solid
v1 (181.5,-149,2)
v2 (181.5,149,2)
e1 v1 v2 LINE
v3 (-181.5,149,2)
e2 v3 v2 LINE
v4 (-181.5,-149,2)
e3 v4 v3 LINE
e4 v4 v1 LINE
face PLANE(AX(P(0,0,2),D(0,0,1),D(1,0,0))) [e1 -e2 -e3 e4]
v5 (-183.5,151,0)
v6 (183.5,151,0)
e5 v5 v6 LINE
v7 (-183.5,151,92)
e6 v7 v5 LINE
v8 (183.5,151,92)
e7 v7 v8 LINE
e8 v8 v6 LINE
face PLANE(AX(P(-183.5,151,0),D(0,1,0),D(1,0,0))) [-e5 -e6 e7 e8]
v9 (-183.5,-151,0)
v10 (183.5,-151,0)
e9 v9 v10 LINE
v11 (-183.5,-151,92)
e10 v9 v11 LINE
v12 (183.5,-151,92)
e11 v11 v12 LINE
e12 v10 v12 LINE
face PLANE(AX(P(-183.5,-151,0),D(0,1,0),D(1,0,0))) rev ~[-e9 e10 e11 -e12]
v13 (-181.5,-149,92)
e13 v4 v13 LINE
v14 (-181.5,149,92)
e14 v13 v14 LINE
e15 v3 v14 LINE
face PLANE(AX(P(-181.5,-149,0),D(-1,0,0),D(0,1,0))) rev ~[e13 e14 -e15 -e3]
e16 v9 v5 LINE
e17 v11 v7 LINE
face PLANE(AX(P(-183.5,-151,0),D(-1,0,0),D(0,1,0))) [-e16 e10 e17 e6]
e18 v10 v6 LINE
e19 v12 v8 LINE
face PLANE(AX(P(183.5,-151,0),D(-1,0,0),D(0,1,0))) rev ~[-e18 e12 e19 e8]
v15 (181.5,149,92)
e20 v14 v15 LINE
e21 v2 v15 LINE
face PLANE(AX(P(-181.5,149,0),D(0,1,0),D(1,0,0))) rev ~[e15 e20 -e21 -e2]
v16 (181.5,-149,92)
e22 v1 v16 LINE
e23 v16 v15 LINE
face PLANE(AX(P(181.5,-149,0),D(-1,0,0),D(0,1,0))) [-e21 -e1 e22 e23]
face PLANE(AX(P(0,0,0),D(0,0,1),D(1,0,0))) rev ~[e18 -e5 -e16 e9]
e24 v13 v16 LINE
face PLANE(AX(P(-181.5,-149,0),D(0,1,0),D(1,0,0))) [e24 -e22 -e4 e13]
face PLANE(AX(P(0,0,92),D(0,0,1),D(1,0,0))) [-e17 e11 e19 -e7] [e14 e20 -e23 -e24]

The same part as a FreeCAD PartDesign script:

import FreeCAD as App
import Part
import Sketcher
from FreeCAD import Vector
Q = App.Units.Quantity


def add_polygon(sketch, points):
    """Adds a closed chain of lines whose ends are joined by coincident constraints."""
    first, n = sketch.GeometryCount, len(points)
    for a, b in zip(points, points[1:] + points[:1]):
        sketch.addGeometry(Part.LineSegment(App.Vector(*a, 0), App.Vector(*b, 0)), False)
    for i in range(n):
        sketch.addConstraint(Sketcher.Constraint("Coincident", first + i, 2, first + (i + 1) % n, 1))

doc = App.newDocument("Part")
body = doc.addObject("PartDesign::Body", "Body")

# Sketch on XY plane
sketch1 = body.newObject("Sketcher::SketchObject", "Sketch")
sketch1.AttachmentSupport = (doc.getObject("XY_Plane"), [""])
sketch1.MapMode = "FlatFace"
add_polygon(sketch1, [(-184, 151), (-184, -151), (184, -151), (184, 151)])  # lines 0-3
add_polygon(sketch1, [(182, -149), (-182, -149), (-182, 149), (182, 149)])  # lines 4-7
sketch1.addConstraint(Sketcher.Constraint("Vertical", 0))
sketch1.addConstraint(Sketcher.Constraint("Horizontal", 1))
sketch1.addConstraint(Sketcher.Constraint("Vertical", 2))
sketch1.addConstraint(Sketcher.Constraint("Horizontal", 3))
sketch1.addConstraint(Sketcher.Constraint("Horizontal", 4))
sketch1.addConstraint(Sketcher.Constraint("Vertical", 5))
sketch1.addConstraint(Sketcher.Constraint("Horizontal", 6))
sketch1.addConstraint(Sketcher.Constraint("Vertical", 7))
sketch1.addConstraint(Sketcher.Constraint("Symmetric", 0, 2, 2, 2, -1, 1))
sketch1.addConstraint(Sketcher.Constraint("Symmetric", 4, 2, 6, 2, -1, 1))
sketch1.addConstraint(Sketcher.Constraint("DistanceX", 1, 1, 1, 2, Q("367 mm")))
sketch1.addConstraint(Sketcher.Constraint("DistanceX", 4, 2, 4, 1, Q("363 mm")))
sketch1.addConstraint(Sketcher.Constraint("DistanceY", 0, 2, 0, 1, Q("302 mm")))
sketch1.addConstraint(Sketcher.Constraint("DistanceY", 5, 1, 5, 2, Q("298 mm")))
pad1 = body.newObject("PartDesign::Pad", "Pad")
pad1.Profile = sketch1
pad1.Length = 92

# Sketch on XY plane
sketch2 = body.newObject("Sketcher::SketchObject", "Sketch001")
sketch2.AttachmentSupport = (doc.getObject("XY_Plane"), [""])
sketch2.MapMode = "FlatFace"
add_polygon(sketch2, [(-184, 151), (-184, -151), (184, -151), (184, 151)])  # lines 0-3
sketch2.addConstraint(Sketcher.Constraint("Vertical", 0))
sketch2.addConstraint(Sketcher.Constraint("Horizontal", 1))
sketch2.addConstraint(Sketcher.Constraint("Vertical", 2))
sketch2.addConstraint(Sketcher.Constraint("Horizontal", 3))
sketch2.addConstraint(Sketcher.Constraint("Symmetric", 0, 2, 2, 2, -1, 1))
sketch2.addConstraint(Sketcher.Constraint("DistanceX", 1, 1, 1, 2, Q("367 mm")))
sketch2.addConstraint(Sketcher.Constraint("DistanceY", 0, 2, 0, 1, Q("302 mm")))
pad2 = body.newObject("PartDesign::Pad", "Pad001")
pad2.Profile = sketch2
pad2.Length = 2

doc.recompute()
